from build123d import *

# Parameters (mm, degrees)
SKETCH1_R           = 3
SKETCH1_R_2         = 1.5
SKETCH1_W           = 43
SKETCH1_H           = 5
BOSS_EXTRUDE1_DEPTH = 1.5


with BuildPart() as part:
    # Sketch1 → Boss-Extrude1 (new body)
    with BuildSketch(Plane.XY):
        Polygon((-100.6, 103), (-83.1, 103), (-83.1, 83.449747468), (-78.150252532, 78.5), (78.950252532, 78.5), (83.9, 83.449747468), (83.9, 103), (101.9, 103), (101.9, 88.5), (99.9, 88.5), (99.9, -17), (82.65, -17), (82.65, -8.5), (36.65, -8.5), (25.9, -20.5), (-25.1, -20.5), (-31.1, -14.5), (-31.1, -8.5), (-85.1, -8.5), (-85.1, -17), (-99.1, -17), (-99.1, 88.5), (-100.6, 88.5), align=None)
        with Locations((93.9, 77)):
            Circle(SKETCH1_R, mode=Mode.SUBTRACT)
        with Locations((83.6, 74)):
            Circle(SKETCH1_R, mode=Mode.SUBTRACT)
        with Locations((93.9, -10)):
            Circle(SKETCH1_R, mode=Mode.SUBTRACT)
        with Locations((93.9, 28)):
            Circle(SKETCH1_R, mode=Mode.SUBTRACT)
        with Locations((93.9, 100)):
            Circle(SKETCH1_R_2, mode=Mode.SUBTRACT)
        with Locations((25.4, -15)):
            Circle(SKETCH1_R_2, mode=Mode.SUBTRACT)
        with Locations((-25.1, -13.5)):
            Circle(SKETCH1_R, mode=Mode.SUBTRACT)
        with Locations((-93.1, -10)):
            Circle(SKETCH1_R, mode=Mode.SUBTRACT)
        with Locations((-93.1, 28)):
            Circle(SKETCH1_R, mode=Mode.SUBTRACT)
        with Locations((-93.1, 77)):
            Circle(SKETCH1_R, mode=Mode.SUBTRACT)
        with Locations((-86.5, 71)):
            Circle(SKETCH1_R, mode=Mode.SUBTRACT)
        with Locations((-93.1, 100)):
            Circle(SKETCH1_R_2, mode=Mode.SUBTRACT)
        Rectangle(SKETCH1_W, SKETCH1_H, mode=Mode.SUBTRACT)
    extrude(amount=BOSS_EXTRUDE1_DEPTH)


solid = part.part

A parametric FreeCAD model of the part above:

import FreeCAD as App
import Part
import Sketcher

V = App.Vector
Q = App.Units.Quantity

doc = App.newDocument("Part")
params = doc.addObject("Spreadsheet::Sheet", "Params")
for row, (alias, value) in enumerate([
    ("sketch1_diameter", "6 mm"),
    ("sketch1_diameter2", "3 mm"),
    ("sketch1_width", "14 mm"),
    ("sketch1_width2", "54 mm"),
    ("sketch1_width3", "51 mm"),
    ("pad1_length", "1.5 mm"),
], start=1):
    params.set(f"A{row}", alias)
    params.set(f"B{row}", "=" + value)
    params.setAlias(f"B{row}", alias)

body = doc.addObject("PartDesign::Body", "Body")

# Sketch on XY plane
sketch1 = doc.addObject("Sketcher::SketchObject", "Sketch")
body.addObject(sketch1)
sketch1.AttachmentSupport = (doc.XY_Plane, [""])
sketch1.MapMode = "FlatFace"
sketch1.addGeometry([
    Part.LineSegment(V(-83.1, 103, 0), V(-100.6, 103, 0)),  # 0
    Part.LineSegment(V(-100.6, 103, 0), V(-100.6, 88.5, 0)),  # 1
    Part.LineSegment(V(-100.6, 88.5, 0), V(-99.1, 88.5, 0)),  # 2
    Part.LineSegment(V(-99.1, 88.5, 0), V(-99.1, -17, 0)),  # 3
    Part.LineSegment(V(-99.1, -17, 0), V(-85.1, -17, 0)),  # 4
    Part.LineSegment(V(-85.1, -17, 0), V(-85.1, -8.5, 0)),  # 5
    Part.LineSegment(V(-85.1, -8.5, 0), V(-31.1, -8.5, 0)),  # 6
    Part.LineSegment(V(-31.1, -8.5, 0), V(-31.1, -14.5, 0)),  # 7
    Part.LineSegment(V(-31.1, -14.5, 0), V(-25.1, -20.5, 0)),  # 8
    Part.LineSegment(V(-25.1, -20.5, 0), V(25.9, -20.5, 0)),  # 9
    Part.LineSegment(V(25.9, -20.5, 0), V(36.65, -8.5, 0)),  # 10
    Part.LineSegment(V(36.65, -8.5, 0), V(82.65, -8.5, 0)),  # 11
    Part.LineSegment(V(82.65, -8.5, 0), V(82.65, -17, 0)),  # 12
    Part.LineSegment(V(82.65, -17, 0), V(99.9, -17, 0)),  # 13
    Part.LineSegment(V(99.9, -17, 0), V(99.9, 88.5, 0)),  # 14
    Part.LineSegment(V(99.9, 88.5, 0), V(101.9, 88.5, 0)),  # 15
    Part.LineSegment(V(101.9, 88.5, 0), V(101.9, 103, 0)),  # 16
    Part.LineSegment(V(101.9, 103, 0), V(83.9, 103, 0)),  # 17
    Part.LineSegment(V(83.9, 103, 0), V(83.9, 83.449747, 0)),  # 18
    Part.LineSegment(V(83.9, 83.449747, 0), V(78.950253, 78.5, 0)),  # 19
    Part.LineSegment(V(78.950253, 78.5, 0), V(-78.150253, 78.5, 0)),  # 20
    Part.LineSegment(V(-78.150253, 78.5, 0), V(-83.1, 83.449747, 0)),  # 21
    Part.LineSegment(V(-83.1, 83.449747, 0), V(-83.1, 103, 0)),  # 22
    Part.Circle(V(93.9, -10, 0), V(0, 0, 1), 3),  # 23
    Part.Circle(V(25.4, -15, 0), V(0, 0, 1), 1.5),  # 24
    Part.Circle(V(93.9, 28, 0), V(0, 0, 1), 3),  # 25
    Part.Circle(V(-25.1, -13.5, 0), V(0, 0, 1), 3),  # 26
    Part.LineSegment(V(-21.5, -2.5, 0), V(-21.5, 2.5, 0)),  # 27
    Part.LineSegment(V(-21.5, 2.5, 0), V(21.5, 2.5, 0)),  # 28
    Part.LineSegment(V(21.5, 2.5, 0), V(21.5, -2.5, 0)),  # 29
    Part.LineSegment(V(21.5, -2.5, 0), V(-21.5, -2.5, 0)),  # 30
    Part.Circle(V(-93.1, -10, 0), V(0, 0, 1), 3),  # 31
    Part.Circle(V(-93.1, 28, 0), V(0, 0, 1), 3),  # 32
    Part.Circle(V(93.9, 77, 0), V(0, 0, 1), 3),  # 33
    Part.Circle(V(83.6, 74, 0), V(0, 0, 1), 3),  # 34
    Part.Circle(V(93.9, 100, 0), V(0, 0, 1), 1.5),  # 35
    Part.Circle(V(-86.5, 71, 0), V(0, 0, 1), 3),  # 36
    Part.Circle(V(-93.1, 77, 0), V(0, 0, 1), 3),  # 37
    Part.Circle(V(-93.1, 100, 0), V(0, 0, 1), 1.5),  # 38
], False)
sketch1.addConstraint([
    Sketcher.Constraint("Coincident", 0, 2, 1, 1),
    Sketcher.Constraint("Coincident", 1, 2, 2, 1),
    Sketcher.Constraint("Coincident", 2, 2, 3, 1),
    Sketcher.Constraint("Coincident", 3, 2, 4, 1),
    Sketcher.Constraint("Coincident", 4, 2, 5, 1),
    Sketcher.Constraint("Coincident", 5, 2, 6, 1),
    Sketcher.Constraint("Coincident", 6, 2, 7, 1),
    Sketcher.Constraint("Coincident", 7, 2, 8, 1),
    Sketcher.Constraint("Coincident", 8, 2, 9, 1),
    Sketcher.Constraint("Coincident", 9, 2, 10, 1),
    Sketcher.Constraint("Coincident", 10, 2, 11, 1),
    Sketcher.Constraint("Coincident", 11, 2, 12, 1),
    Sketcher.Constraint("Coincident", 12, 2, 13, 1),
    Sketcher.Constraint("Coincident", 13, 2, 14, 1),
    Sketcher.Constraint("Coincident", 14, 2, 15, 1),
    Sketcher.Constraint("Coincident", 15, 2, 16, 1),
    Sketcher.Constraint("Coincident", 16, 2, 17, 1),
    Sketcher.Constraint("Coincident", 17, 2, 18, 1),
    Sketcher.Constraint("Coincident", 18, 2, 19, 1),
    Sketcher.Constraint("Coincident", 19, 2, 20, 1),
    Sketcher.Constraint("Coincident", 20, 2, 21, 1),
    Sketcher.Constraint("Coincident", 21, 2, 22, 1),
    Sketcher.Constraint("Coincident", 22, 2, 0, 1),
    Sketcher.Constraint("Coincident", 27, 2, 28, 1),
    Sketcher.Constraint("Coincident", 28, 2, 29, 1),
    Sketcher.Constraint("Coincident", 29, 2, 30, 1),
    Sketcher.Constraint("Coincident", 30, 2, 27, 1),
    Sketcher.Constraint("Horizontal", 0),
    Sketcher.Constraint("Vertical", 1),
    Sketcher.Constraint("Horizontal", 2),
    Sketcher.Constraint("Vertical", 3),
    Sketcher.Constraint("Horizontal", 4),
    Sketcher.Constraint("Vertical", 5),
    Sketcher.Constraint("Horizontal", 6),
    Sketcher.Constraint("Vertical", 7),
    Sketcher.Constraint("Horizontal", 9),
    Sketcher.Constraint("Horizontal", 11),
    Sketcher.Constraint("Vertical", 12),
    Sketcher.Constraint("Horizontal", 13),
    Sketcher.Constraint("Vertical", 14),
    Sketcher.Constraint("Horizontal", 15),
    Sketcher.Constraint("Vertical", 16),
    Sketcher.Constraint("Horizontal", 17),
    Sketcher.Constraint("Vertical", 18),
    Sketcher.Constraint("Horizontal", 20),
    Sketcher.Constraint("Vertical", 22),
    Sketcher.Constraint("Vertical", 27),
    Sketcher.Constraint("Horizontal", 28),
    Sketcher.Constraint("Vertical", 29),
    Sketcher.Constraint("Horizontal", 30),
    Sketcher.Constraint("Equal", 23, 25),
    Sketcher.Constraint("Equal", 25, 26),
    Sketcher.Constraint("Equal", 26, 31),
    Sketcher.Constraint("Equal", 31, 32),
    Sketcher.Constraint("Equal", 32, 33),
    Sketcher.Constraint("Equal", 33, 34),
    Sketcher.Constraint("Equal", 24, 35),
    Sketcher.Constraint("Equal", 34, 36),
    Sketcher.Constraint("Equal", 36, 37),
    Sketcher.Constraint("Equal", 35, 38),
    Sketcher.Constraint("Symmetric", 27, 2, 29, 2, -1, 1),
    Sketcher.Constraint("Perpendicular", 8, 19),
    Sketcher.Constraint("Perpendicular", 19, 21),
    Sketcher.Constraint("Horizontal", 23, 3, 31, 3),
    Sketcher.Constraint("Horizontal", 25, 3, 32, 3),
    Sketcher.Constraint("Horizontal", 33, 3, 37, 3),
    Sketcher.Constraint("Horizontal", 35, 3, 38, 3),
    Sketcher.Constraint("Horizontal", 6, 2, 10, 2),
    Sketcher.Constraint("Horizontal", 4, 2, 12, 2),
    Sketcher.Constraint("Horizontal", 2, 2, 14, 2),
    Sketcher.Constraint("Horizontal", 0, 2, 16, 2),
    Sketcher.Constraint("Horizontal", 18, 2, 21, 2),
    Sketcher.Constraint("Vertical", 23, 3, 25, 3),
    Sketcher.Constraint("Vertical", 31, 3, 32, 3),
    Sketcher.Constraint("Vertical", 25, 3, 33, 3),
    Sketcher.Constraint("Vertical", 33, 3, 35, 3),
    Sketcher.Constraint("Vertical", 32, 3, 37, 3),
    Sketcher.Constraint("Vertical", 37, 3, 38, 3),
    Sketcher.Constraint("Vertical", 26, 3, 8, 2),
    Sketcher.Constraint("Equal", 19, 21),
    Sketcher.Constraint("Diameter", 23, Q("6 mm")),
    Sketcher.Constraint("Diameter", 24, Q("3 mm")),
    Sketcher.Constraint("DistanceX", 4, 1, 4, 2, Q("14 mm")),
    Sketcher.Constraint("DistanceX", 6, 1, 6, 2, Q("54 mm")),
    Sketcher.Constraint("DistanceX", 9, 1, 9, 2, Q("51 mm")),
    Sketcher.Constraint("DistanceX", 11, 1, 11, 2, Q("46 mm")),
    Sketcher.Constraint("DistanceX", 15, 1, 15, 2, Q("2 mm")),
    Sketcher.Constraint("DistanceX", 17, 2, 17, 1, Q("18 mm")),
    Sketcher.Constraint("DistanceX", 28, 1, 28, 2, Q("43 mm")),
    Sketcher.Constraint("DistanceY", 7, 2, 7, 1, Q("6 mm")),
    Sketcher.Constraint("DistanceY", 27, 1, 27, 2, Q("5 mm")),
    Sketcher.Constraint("Distance", 19, Q("7 mm")),
    Sketcher.Constraint("DistanceX", 0, 2, 0, 1, Q("17.5 mm")),
    Sketcher.Constraint("DistanceX", 2, 1, 2, 2, Q("1.5 mm")),
    Sketcher.Constraint("DistanceY", 1, 2, 1, 1, Q("14.5 mm")),
    Sketcher.Constraint("DistanceY", 3, 2, 3, 1, Q("105.5 mm")),
    Sketcher.Constraint("DistanceY", 5, 1, 5, 2, Q("8.5 mm")),
    Sketcher.Constraint("DistanceY", 23, 3, -1, 1, Q("10 mm")),
    Sketcher.Constraint("DistanceY", 24, 3, -1, 1, Q("15 mm")),
    Sketcher.Constraint("DistanceY", -1, 1, 25, 3, Q("28 mm")),
    Sketcher.Constraint("DistanceY", -1, 1, 33, 3, Q("77 mm")),
    Sketcher.Constraint("DistanceY", -1, 1, 34, 3, Q("74 mm")),
    Sketcher.Constraint("DistanceY", -1, 1, 35, 3, Q("100 mm")),
    Sketcher.Constraint("DistanceY", -1, 1, 36, 3, Q("71 mm")),
    Sketcher.Constraint("DistanceY", -1, 1, 0, 2, Q("103 mm")),
    Sketcher.Constraint("DistanceX", 26, 3, 23, 3, Q("119 mm")),
    Sketcher.Constraint("DistanceX", 31, 3, 26, 3, Q("68 mm")),
    Sketcher.Constraint("DistanceX", 2, 2, 37, 3, Q("6 mm")),
    Sketcher.Constraint("DistanceY", 26, 3, 5, 2, Q("5 mm")),
    Sketcher.Constraint("DistanceX", 23, 3, 13, 2, Q("6 mm")),
    Sketcher.Constraint("DistanceY", 19, 2, 14, 2, Q("10 mm")),
    Sketcher.Constraint("DistanceX", 13, 1, 13, 2, Q("17.25 mm")),
    Sketcher.Constraint("DistanceX", -1, 1, 23, 3, Q("93.9 mm")),
    Sketcher.Constraint("DistanceX", -1, 1, 24, 3, Q("25.4 mm")),
    Sketcher.Constraint("DistanceX", -1, 1, 34, 3, Q("83.6 mm")),
    Sketcher.Constraint("DistanceX", 36, 3, -1, 1, Q("86.5 mm")),
])
sketch1.setExpression("Constraints[80]", "Params.sketch1_diameter")
sketch1.setExpression("Constraints[81]", "Params.sketch1_diameter2")
sketch1.setExpression("Constraints[82]", "Params.sketch1_width")
sketch1.setExpression("Constraints[83]", "Params.sketch1_width2")
sketch1.setExpression("Constraints[84]", "Params.sketch1_width3")
pad1 = doc.addObject("PartDesign::Pad", "Pad")
body.addObject(pad1)
pad1.Profile = sketch1
pad1.setExpression("Length", "Params.pad1_length")

doc.recompute()
